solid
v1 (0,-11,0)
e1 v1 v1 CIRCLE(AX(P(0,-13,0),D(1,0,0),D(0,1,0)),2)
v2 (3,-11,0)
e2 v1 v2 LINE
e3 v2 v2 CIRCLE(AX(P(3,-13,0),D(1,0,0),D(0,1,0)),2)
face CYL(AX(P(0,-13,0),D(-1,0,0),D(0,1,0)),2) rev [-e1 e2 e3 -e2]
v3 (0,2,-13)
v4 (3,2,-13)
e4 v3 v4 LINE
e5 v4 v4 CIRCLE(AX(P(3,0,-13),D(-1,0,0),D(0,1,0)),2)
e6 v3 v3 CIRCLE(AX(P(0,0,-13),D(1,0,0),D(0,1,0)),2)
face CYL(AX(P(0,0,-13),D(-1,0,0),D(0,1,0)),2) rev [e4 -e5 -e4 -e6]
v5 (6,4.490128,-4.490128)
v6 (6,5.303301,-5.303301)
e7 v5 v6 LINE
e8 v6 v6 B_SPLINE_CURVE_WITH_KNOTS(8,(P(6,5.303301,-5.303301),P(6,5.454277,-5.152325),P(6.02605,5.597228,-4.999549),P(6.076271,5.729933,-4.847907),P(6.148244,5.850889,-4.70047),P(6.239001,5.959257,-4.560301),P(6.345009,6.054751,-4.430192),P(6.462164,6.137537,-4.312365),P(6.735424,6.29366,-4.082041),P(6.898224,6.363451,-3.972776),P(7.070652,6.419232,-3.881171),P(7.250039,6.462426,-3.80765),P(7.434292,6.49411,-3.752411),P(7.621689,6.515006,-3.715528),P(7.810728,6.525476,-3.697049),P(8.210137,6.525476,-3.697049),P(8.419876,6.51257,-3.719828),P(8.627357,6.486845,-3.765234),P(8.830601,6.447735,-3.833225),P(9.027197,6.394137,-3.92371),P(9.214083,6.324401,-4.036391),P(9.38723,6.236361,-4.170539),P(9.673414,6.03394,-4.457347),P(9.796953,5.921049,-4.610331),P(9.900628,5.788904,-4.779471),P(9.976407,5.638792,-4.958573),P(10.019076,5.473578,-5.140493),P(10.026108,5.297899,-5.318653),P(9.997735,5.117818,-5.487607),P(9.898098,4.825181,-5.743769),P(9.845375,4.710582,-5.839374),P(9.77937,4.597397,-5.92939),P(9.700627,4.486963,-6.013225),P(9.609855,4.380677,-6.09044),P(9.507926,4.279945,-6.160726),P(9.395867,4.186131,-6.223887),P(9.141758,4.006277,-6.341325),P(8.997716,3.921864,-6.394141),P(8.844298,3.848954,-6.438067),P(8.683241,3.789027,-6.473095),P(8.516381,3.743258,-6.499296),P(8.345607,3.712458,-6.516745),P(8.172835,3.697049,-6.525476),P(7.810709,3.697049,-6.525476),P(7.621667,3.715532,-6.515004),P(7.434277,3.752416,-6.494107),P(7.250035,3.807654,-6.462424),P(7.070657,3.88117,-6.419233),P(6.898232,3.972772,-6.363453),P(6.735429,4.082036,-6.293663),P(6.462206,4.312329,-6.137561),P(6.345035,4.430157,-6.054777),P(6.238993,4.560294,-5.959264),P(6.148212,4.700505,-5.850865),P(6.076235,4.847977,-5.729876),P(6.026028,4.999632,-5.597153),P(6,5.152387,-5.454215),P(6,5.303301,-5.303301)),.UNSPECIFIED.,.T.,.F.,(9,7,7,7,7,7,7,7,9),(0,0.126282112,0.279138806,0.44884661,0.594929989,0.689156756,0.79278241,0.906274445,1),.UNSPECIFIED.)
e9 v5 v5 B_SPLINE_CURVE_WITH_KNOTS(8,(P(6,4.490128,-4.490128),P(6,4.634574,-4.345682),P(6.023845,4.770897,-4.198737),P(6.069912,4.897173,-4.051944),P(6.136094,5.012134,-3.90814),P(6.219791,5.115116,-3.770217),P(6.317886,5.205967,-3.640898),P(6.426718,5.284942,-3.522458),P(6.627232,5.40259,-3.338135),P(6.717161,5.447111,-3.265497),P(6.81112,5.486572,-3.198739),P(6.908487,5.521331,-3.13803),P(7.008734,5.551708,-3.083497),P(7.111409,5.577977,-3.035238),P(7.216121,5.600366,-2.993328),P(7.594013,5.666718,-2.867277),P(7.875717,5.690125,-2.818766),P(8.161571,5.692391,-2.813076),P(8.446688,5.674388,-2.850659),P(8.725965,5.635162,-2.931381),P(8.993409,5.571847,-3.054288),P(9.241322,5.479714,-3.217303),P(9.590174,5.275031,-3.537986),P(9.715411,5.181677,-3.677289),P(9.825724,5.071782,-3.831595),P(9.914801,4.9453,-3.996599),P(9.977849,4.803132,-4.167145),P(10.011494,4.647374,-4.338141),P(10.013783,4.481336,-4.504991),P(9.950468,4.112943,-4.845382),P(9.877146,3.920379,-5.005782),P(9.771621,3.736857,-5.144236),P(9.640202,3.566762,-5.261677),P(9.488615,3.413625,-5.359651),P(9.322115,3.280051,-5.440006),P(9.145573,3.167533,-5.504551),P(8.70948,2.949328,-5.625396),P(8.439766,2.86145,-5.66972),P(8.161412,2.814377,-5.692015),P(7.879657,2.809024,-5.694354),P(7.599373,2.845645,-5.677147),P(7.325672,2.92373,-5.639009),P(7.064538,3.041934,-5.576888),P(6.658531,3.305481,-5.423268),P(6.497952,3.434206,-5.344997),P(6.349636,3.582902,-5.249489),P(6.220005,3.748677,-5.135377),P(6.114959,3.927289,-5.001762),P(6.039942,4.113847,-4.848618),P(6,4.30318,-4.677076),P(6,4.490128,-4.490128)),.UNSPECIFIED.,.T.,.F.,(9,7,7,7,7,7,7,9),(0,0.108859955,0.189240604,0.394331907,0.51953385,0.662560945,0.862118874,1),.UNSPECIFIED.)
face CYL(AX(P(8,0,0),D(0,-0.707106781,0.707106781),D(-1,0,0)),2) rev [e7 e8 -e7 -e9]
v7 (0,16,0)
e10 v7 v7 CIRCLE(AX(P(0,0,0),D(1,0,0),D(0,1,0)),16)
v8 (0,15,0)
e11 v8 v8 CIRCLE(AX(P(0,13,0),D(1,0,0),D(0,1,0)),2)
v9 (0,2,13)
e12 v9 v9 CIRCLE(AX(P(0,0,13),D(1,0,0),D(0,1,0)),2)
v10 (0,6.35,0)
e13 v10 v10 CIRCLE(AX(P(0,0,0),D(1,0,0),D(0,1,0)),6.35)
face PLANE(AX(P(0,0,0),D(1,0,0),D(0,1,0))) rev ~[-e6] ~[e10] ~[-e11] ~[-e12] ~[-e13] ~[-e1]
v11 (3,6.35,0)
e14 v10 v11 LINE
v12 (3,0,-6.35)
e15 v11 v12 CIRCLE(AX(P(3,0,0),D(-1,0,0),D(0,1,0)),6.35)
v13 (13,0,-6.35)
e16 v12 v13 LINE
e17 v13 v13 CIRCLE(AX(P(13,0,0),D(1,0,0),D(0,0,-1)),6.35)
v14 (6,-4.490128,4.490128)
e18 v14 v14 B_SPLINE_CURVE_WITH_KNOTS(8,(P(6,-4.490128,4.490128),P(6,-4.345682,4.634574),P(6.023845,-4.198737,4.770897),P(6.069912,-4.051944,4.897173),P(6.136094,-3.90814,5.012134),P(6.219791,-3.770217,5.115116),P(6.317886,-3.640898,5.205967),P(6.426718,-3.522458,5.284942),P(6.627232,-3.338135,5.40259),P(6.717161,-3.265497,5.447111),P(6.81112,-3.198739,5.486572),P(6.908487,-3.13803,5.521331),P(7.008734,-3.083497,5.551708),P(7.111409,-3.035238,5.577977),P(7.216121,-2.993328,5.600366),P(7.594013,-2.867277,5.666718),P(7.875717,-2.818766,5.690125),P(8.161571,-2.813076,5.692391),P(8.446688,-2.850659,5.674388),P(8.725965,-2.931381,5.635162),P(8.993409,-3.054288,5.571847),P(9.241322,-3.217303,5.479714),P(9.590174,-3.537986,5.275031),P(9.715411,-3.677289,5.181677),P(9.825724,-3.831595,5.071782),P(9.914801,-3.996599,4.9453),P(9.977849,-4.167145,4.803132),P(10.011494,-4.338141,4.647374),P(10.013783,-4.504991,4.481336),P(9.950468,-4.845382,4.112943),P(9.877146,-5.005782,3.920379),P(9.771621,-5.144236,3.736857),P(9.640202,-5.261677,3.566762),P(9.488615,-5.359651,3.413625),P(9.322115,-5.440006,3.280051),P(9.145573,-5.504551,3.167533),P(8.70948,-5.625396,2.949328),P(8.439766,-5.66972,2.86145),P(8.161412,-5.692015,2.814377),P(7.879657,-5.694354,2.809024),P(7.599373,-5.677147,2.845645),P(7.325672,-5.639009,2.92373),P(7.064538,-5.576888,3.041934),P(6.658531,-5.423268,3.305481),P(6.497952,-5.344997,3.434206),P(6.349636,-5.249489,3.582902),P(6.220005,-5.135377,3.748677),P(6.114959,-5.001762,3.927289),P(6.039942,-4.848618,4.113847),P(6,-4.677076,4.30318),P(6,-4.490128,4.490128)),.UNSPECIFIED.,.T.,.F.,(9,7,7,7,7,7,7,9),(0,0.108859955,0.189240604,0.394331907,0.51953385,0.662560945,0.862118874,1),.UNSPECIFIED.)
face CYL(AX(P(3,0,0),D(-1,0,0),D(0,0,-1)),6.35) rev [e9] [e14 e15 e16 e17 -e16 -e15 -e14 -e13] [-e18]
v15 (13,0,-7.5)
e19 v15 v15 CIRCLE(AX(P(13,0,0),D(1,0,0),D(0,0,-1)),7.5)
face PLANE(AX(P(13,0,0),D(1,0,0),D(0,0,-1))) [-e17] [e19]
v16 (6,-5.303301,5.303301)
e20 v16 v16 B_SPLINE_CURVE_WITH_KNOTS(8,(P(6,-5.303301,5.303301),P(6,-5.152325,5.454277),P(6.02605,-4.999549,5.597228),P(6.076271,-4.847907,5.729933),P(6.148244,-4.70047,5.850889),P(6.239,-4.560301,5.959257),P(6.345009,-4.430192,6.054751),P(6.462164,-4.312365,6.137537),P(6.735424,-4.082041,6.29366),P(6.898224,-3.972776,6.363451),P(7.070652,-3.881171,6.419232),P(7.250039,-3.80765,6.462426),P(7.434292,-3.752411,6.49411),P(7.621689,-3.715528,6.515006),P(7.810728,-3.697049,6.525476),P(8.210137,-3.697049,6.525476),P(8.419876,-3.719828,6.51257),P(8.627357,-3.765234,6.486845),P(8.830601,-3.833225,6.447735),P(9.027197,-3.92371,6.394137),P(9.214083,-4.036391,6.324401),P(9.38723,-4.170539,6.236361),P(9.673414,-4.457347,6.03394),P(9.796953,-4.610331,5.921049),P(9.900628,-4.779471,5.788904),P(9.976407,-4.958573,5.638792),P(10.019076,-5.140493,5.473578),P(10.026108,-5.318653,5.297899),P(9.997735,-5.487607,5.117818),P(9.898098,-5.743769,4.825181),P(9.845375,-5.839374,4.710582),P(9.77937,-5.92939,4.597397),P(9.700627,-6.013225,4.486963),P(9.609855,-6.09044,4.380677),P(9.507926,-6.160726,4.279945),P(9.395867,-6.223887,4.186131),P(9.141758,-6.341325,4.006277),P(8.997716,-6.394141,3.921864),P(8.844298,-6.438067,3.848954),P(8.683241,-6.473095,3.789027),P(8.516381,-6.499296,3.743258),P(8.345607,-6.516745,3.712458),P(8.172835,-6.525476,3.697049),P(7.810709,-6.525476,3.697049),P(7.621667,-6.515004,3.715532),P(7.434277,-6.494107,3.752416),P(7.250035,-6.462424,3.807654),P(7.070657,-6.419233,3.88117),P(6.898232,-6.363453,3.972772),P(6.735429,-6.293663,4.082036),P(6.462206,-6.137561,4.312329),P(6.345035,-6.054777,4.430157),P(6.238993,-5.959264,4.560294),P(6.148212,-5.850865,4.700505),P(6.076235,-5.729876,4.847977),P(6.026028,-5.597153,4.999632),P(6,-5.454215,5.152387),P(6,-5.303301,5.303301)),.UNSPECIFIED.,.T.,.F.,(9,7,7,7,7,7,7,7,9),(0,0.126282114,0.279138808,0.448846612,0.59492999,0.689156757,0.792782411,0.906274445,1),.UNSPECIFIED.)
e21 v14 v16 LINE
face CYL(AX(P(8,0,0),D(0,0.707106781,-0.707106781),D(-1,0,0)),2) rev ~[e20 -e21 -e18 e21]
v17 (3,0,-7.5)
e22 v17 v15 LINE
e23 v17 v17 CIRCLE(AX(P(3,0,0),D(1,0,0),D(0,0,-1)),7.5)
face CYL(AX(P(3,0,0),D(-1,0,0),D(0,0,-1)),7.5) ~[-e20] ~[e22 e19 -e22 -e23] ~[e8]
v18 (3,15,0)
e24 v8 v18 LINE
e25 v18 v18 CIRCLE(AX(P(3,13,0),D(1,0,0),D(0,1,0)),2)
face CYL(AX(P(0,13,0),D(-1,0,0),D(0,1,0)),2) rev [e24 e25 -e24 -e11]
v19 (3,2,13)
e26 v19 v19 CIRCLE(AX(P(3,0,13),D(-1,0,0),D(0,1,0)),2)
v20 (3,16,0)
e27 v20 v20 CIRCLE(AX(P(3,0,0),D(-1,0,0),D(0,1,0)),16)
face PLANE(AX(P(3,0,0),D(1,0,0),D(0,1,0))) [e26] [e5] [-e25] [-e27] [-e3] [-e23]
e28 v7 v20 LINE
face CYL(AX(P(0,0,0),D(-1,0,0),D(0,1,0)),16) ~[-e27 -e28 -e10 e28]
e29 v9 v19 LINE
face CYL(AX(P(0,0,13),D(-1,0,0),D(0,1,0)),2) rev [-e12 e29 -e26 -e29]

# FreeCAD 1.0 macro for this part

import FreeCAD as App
import Part
import Sketcher
from FreeCAD import Vector

doc = App.newDocument("Part")
body = doc.addObject("PartDesign::Body", "Body")

sketch1 = body.newObject("Sketcher::SketchObject", "Sketch")
sketch1.AttachmentSupport = (doc.getObject("YZ_Plane"), [""])
sketch1.MapMode = "FlatFace"
sketch1.addGeometry([
    Part.Circle(Vector(0, 0, 0), Vector(0, 0, 1), 16),
    Part.Circle(Vector(0, -13, 0), Vector(0, 0, 1), 2),
    Part.Circle(Vector(0, 0, 0), Vector(0, 0, 1), 6.3),
    Part.Circle(Vector(0, 13, 0), Vector(0, 0, 1), 2),
    Part.Circle(Vector(13, 0, 0), Vector(0, 0, 1), 2),
    Part.Circle(Vector(-13, 0, 0), Vector(0, 0, 1), 2),
], False)
sketch1.addConstraint([
    Sketcher.Constraint("Coincident", 0, 3, -1, 1),
    Sketcher.Constraint("Coincident", 2, 3, -1, 1),
    Sketcher.Constraint("Equal", 1, 3),
    Sketcher.Constraint("Equal", 3, 4),
    Sketcher.Constraint("Equal", 4, 5),
    Sketcher.Constraint("Symmetric", 1, 3, 3, 3, -1, 1),
    Sketcher.Constraint("Symmetric", 4, 3, 5, 3, -1, 1),
    Sketcher.Constraint("PointOnObject", 1, 3, -2),
    Sketcher.Constraint("PointOnObject", 4, 3, -1),
    Sketcher.Constraint("Diameter", 0, 32.0),
    Sketcher.Constraint("Diameter", 1, 4.0),
    Sketcher.Constraint("Diameter", 2, 12.7),
    Sketcher.Constraint("DistanceY", 1, 3, -1, 1, 13.0),
    Sketcher.Constraint("DistanceX", -1, 1, 4, 3, 13.0),
])
pad1 = body.newObject("PartDesign::Pad", "Pad")
pad1.Profile = sketch1
pad1.Length = 3

sketch2 = body.newObject("Sketcher::SketchObject", "Sketch001")
sketch2.AttachmentSupport = (doc.getObject("YZ_Plane"), [""])
sketch2.MapMode = "FlatFace"
sketch2.AttachmentOffset = App.Placement(Vector(0, 0, 3), App.Rotation())
sketch2.addGeometry([
    Part.Circle(Vector(0, 0, 0), Vector(0, 0, 1), 8),
    Part.Circle(Vector(0, 0, 0), Vector(0, 0, 1), 6),
], False)
sketch2.addConstraint([
    Sketcher.Constraint("Coincident", 0, 3, -1, 1),
    Sketcher.Constraint("Coincident", 1, 3, -1, 1),
    Sketcher.Constraint("Diameter", 0, 15.0),
    Sketcher.Constraint("Diameter", 1, 12.7),
])
pad2 = body.newObject("PartDesign::Pad", "Pad001")
pad2.Profile = sketch2
pad2.Length = 10

sketch3 = body.newObject("Sketcher::SketchObject", "Sketch002")
sketch3.Placement = App.Placement(Vector(0, 0, 0), App.Rotation(Vector(-1, 0, 0), Vector(0, 0.707106781, 0.707106781), Vector(0, 0.707106781, -0.707106781), "ZXY"))
sketch3.addGeometry(Part.Circle(Vector(-8, 0, 0), Vector(0, 0, 1), 2), False)
sketch3.addConstraint([
    Sketcher.Constraint("PointOnObject", 0, 3, -1),
    Sketcher.Constraint("Diameter", 0, 4.0),
    Sketcher.Constraint("DistanceX", 0, 3, -1, 1, 8.0),
])
pocket1 = body.newObject("PartDesign::Pocket", "Pocket")
pocket1.Profile = sketch3
pocket1.Type = "ThroughAll"
pocket1.Midplane = True

doc.recompute()
